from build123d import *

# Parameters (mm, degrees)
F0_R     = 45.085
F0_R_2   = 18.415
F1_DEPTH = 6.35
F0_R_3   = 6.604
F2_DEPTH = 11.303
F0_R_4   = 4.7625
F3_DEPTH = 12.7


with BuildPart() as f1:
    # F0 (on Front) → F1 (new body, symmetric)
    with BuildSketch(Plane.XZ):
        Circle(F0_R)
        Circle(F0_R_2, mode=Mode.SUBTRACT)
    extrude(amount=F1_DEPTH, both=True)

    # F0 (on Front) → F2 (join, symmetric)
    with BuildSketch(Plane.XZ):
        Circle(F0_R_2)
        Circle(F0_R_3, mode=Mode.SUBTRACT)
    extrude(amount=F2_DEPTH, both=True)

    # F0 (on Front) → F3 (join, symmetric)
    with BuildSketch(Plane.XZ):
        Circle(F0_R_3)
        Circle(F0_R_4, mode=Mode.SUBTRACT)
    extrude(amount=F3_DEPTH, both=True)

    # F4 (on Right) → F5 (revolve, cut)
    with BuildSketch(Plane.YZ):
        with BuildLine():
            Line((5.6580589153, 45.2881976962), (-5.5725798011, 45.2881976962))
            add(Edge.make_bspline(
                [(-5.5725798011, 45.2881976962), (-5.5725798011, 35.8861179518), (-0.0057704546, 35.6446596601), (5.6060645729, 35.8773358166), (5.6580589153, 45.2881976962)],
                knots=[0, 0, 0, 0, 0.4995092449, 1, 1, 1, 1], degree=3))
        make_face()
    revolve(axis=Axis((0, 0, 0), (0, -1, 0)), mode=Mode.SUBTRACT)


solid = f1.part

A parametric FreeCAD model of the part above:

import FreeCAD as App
import Part
import Sketcher
Q = App.Units.Quantity

doc = App.newDocument("Part")
params = doc.addObject("Spreadsheet::Sheet", "Params")
for row, (alias, value) in enumerate([
    ("sketch1_diameter", "3.55 in"),
    ("sketch1_diameter2", "1.45 in"),
    ("pad1_length", "0.5 in"),
    ("sketch2_diameter", "1.45 in"),
    ("sketch2_diameter2", "0.52 in"),
    ("pad2_length", "0.89 in"),
    ("sketch3_diameter", "0.52 in"),
    ("sketch3_diameter2", "0.375 in"),
    ("pad3_length", "1 in"),
    ("groove_angle", "360 deg"),
], start=1):
    params.set(f"A{row}", alias)
    params.set(f"B{row}", "=" + value)
    params.setAlias(f"B{row}", alias)

body = doc.addObject("PartDesign::Body", "Body")

sketch1 = body.newObject("Sketcher::SketchObject", "Sketch")
sketch1.AttachmentSupport = (doc.getObject("XZ_Plane"), [""])
sketch1.MapMode = "FlatFace"
sketch1.addGeometry([
    Part.Circle(App.Vector(0, 0, 0), App.Vector(0, 0, 1), 45),
    Part.Circle(App.Vector(0, 0, 0), App.Vector(0, 0, 1), 18),
], False)
sketch1.addConstraint([
    Sketcher.Constraint("Coincident", 0, 3, -1, 1),
    Sketcher.Constraint("Coincident", 1, 3, -1, 1),
    Sketcher.Constraint("Diameter", 0, Q("3.55 in")),
    Sketcher.Constraint("Diameter", 1, Q("1.45 in")),
])
sketch1.setExpression("Constraints[2]", "Params.sketch1_diameter")
sketch1.setExpression("Constraints[3]", "Params.sketch1_diameter2")
pad1 = body.newObject("PartDesign::Pad", "Pad")
pad1.Profile = sketch1
pad1.setExpression("Length", "Params.pad1_length")
pad1.Midplane = True

sketch2 = body.newObject("Sketcher::SketchObject", "Sketch001")
sketch2.AttachmentSupport = (doc.getObject("XZ_Plane"), [""])
sketch2.MapMode = "FlatFace"
sketch2.addGeometry([
    Part.Circle(App.Vector(0, 0, 0), App.Vector(0, 0, 1), 18),
    Part.Circle(App.Vector(0, 0, 0), App.Vector(0, 0, 1), 7),
], False)
sketch2.addConstraint([
    Sketcher.Constraint("Coincident", 0, 3, -1, 1),
    Sketcher.Constraint("Coincident", 1, 3, -1, 1),
    Sketcher.Constraint("Diameter", 0, Q("1.45 in")),
    Sketcher.Constraint("Diameter", 1, Q("0.52 in")),
])
sketch2.setExpression("Constraints[2]", "Params.sketch2_diameter")
sketch2.setExpression("Constraints[3]", "Params.sketch2_diameter2")
pad2 = body.newObject("PartDesign::Pad", "Pad001")
pad2.Profile = sketch2
pad2.setExpression("Length", "Params.pad2_length")
pad2.Midplane = True

sketch3 = body.newObject("Sketcher::SketchObject", "Sketch002")
sketch3.AttachmentSupport = (doc.getObject("XZ_Plane"), [""])
sketch3.MapMode = "FlatFace"
sketch3.addGeometry([
    Part.Circle(App.Vector(0, 0, 0), App.Vector(0, 0, 1), 6.6),
    Part.Circle(App.Vector(0, 0, 0), App.Vector(0, 0, 1), 4.8),
], False)
sketch3.addConstraint([
    Sketcher.Constraint("Coincident", 0, 3, -1, 1),
    Sketcher.Constraint("Coincident", 1, 3, -1, 1),
    Sketcher.Constraint("Diameter", 0, Q("0.52 in")),
    Sketcher.Constraint("Diameter", 1, Q("0.375 in")),
])
sketch3.setExpression("Constraints[2]", "Params.sketch3_diameter")
sketch3.setExpression("Constraints[3]", "Params.sketch3_diameter2")
pad3 = body.newObject("PartDesign::Pad", "Pad002")
pad3.Profile = sketch3
pad3.setExpression("Length", "Params.pad3_length")
pad3.Midplane = True

sketch4 = body.newObject("Sketcher::SketchObject", "Sketch003")
sketch4.AttachmentSupport = (doc.getObject("YZ_Plane"), [""])
sketch4.MapMode = "FlatFace"
sketch4.addGeometry([
    Part.LineSegment(App.Vector(5.658059, 45.288198, 0), App.Vector(-5.57258, 45.288198, 0)),
    Part.BSplineCurve([App.Vector(-5.57258, 45.288198, 0), App.Vector(-5.57258, 35.886118, 0), App.Vector(-0.00577, 35.64466, 0), App.Vector(5.606065, 35.877336, 0), App.Vector(5.658059, 45.288198, 0)], [4, 1, 4], [0, 0.499509245, 1], False, 3, [1, 1, 1, 1, 1], False),
], False)
sketch4.addConstraint([
    Sketcher.Constraint("Block", 1),
    Sketcher.Constraint("Coincident", 0, 1, 1, 2),
    Sketcher.Constraint("Coincident", 1, 1, 0, 2),
])
groove = body.newObject("PartDesign::Groove", "Groove")
groove.Profile = sketch4
groove.ReferenceAxis = (sketch4, ["H_Axis"])
groove.setExpression("Angle", "Params.groove_angle")

doc.recompute()
